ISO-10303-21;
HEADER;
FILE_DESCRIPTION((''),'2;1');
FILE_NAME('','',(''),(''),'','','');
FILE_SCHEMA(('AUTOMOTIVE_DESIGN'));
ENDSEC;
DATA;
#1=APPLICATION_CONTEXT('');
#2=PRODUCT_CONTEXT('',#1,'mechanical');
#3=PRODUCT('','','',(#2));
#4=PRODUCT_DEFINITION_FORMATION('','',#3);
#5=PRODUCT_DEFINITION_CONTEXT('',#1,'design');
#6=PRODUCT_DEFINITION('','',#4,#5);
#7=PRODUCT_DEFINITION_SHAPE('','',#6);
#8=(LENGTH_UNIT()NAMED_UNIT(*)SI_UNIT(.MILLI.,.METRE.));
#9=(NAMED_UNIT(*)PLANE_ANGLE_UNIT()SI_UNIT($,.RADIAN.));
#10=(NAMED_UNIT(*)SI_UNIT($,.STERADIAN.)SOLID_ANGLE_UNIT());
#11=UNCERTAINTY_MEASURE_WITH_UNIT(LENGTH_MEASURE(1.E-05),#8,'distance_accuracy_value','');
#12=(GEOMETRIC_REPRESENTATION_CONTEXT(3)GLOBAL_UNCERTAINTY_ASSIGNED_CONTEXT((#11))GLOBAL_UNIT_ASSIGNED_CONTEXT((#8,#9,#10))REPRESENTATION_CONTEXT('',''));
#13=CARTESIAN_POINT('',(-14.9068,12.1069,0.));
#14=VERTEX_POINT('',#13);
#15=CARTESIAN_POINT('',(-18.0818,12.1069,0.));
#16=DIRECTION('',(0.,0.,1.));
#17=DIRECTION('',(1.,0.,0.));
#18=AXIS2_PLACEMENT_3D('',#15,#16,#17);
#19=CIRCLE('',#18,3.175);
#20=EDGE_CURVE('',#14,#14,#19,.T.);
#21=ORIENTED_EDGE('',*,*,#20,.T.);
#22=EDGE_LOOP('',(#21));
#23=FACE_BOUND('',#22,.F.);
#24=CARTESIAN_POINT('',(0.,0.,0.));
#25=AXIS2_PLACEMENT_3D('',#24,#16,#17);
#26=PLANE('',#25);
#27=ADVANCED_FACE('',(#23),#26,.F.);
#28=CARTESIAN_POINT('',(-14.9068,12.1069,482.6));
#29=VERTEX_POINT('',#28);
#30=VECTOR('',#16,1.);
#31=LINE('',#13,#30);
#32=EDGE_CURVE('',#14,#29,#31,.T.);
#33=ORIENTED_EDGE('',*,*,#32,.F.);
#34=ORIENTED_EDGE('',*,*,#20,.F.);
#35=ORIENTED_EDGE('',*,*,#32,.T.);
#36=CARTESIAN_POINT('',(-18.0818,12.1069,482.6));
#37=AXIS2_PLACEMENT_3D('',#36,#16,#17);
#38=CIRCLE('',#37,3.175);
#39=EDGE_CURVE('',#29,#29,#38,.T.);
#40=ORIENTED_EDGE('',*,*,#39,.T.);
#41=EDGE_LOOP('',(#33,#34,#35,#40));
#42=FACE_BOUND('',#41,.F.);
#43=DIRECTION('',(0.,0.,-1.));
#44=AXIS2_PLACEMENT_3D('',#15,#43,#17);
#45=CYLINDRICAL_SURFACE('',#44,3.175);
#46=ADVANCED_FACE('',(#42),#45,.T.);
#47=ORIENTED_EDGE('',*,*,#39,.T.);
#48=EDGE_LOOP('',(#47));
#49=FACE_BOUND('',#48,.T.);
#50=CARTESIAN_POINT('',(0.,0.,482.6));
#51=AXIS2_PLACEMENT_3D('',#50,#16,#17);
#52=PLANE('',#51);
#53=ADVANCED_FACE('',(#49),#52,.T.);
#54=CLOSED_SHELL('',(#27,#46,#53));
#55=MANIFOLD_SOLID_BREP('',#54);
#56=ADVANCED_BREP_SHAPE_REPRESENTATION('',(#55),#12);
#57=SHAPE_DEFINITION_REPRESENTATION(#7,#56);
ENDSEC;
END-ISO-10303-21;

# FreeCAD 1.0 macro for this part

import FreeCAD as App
import Part
import Sketcher
from FreeCAD import Vector
Q = App.Units.Quantity

doc = App.newDocument("Part")
body = doc.addObject("PartDesign::Body", "Body")

# Sketch on XY plane
sketch1 = body.newObject("Sketcher::SketchObject", "Sketch")
sketch1.AttachmentSupport = (doc.getObject("XY_Plane"), [""])
sketch1.MapMode = "FlatFace"
sketch1.addGeometry(Part.Circle(Vector(-18.1, 12.1, 0), Vector(0, 0, 1), 3.2), False)
sketch1.addConstraint([
    Sketcher.Constraint("Diameter", 0, Q("0.25 in")),
    Sketcher.Constraint("DistanceX", 0, 3, -1, 1, Q("18.0818 mm")),
    Sketcher.Constraint("DistanceY", -1, 1, 0, 3, Q("12.107 mm")),
])
pad1 = body.newObject("PartDesign::Pad", "Pad")
pad1.Profile = sketch1
pad1.Length = Q("19 in")

doc.recompute()
